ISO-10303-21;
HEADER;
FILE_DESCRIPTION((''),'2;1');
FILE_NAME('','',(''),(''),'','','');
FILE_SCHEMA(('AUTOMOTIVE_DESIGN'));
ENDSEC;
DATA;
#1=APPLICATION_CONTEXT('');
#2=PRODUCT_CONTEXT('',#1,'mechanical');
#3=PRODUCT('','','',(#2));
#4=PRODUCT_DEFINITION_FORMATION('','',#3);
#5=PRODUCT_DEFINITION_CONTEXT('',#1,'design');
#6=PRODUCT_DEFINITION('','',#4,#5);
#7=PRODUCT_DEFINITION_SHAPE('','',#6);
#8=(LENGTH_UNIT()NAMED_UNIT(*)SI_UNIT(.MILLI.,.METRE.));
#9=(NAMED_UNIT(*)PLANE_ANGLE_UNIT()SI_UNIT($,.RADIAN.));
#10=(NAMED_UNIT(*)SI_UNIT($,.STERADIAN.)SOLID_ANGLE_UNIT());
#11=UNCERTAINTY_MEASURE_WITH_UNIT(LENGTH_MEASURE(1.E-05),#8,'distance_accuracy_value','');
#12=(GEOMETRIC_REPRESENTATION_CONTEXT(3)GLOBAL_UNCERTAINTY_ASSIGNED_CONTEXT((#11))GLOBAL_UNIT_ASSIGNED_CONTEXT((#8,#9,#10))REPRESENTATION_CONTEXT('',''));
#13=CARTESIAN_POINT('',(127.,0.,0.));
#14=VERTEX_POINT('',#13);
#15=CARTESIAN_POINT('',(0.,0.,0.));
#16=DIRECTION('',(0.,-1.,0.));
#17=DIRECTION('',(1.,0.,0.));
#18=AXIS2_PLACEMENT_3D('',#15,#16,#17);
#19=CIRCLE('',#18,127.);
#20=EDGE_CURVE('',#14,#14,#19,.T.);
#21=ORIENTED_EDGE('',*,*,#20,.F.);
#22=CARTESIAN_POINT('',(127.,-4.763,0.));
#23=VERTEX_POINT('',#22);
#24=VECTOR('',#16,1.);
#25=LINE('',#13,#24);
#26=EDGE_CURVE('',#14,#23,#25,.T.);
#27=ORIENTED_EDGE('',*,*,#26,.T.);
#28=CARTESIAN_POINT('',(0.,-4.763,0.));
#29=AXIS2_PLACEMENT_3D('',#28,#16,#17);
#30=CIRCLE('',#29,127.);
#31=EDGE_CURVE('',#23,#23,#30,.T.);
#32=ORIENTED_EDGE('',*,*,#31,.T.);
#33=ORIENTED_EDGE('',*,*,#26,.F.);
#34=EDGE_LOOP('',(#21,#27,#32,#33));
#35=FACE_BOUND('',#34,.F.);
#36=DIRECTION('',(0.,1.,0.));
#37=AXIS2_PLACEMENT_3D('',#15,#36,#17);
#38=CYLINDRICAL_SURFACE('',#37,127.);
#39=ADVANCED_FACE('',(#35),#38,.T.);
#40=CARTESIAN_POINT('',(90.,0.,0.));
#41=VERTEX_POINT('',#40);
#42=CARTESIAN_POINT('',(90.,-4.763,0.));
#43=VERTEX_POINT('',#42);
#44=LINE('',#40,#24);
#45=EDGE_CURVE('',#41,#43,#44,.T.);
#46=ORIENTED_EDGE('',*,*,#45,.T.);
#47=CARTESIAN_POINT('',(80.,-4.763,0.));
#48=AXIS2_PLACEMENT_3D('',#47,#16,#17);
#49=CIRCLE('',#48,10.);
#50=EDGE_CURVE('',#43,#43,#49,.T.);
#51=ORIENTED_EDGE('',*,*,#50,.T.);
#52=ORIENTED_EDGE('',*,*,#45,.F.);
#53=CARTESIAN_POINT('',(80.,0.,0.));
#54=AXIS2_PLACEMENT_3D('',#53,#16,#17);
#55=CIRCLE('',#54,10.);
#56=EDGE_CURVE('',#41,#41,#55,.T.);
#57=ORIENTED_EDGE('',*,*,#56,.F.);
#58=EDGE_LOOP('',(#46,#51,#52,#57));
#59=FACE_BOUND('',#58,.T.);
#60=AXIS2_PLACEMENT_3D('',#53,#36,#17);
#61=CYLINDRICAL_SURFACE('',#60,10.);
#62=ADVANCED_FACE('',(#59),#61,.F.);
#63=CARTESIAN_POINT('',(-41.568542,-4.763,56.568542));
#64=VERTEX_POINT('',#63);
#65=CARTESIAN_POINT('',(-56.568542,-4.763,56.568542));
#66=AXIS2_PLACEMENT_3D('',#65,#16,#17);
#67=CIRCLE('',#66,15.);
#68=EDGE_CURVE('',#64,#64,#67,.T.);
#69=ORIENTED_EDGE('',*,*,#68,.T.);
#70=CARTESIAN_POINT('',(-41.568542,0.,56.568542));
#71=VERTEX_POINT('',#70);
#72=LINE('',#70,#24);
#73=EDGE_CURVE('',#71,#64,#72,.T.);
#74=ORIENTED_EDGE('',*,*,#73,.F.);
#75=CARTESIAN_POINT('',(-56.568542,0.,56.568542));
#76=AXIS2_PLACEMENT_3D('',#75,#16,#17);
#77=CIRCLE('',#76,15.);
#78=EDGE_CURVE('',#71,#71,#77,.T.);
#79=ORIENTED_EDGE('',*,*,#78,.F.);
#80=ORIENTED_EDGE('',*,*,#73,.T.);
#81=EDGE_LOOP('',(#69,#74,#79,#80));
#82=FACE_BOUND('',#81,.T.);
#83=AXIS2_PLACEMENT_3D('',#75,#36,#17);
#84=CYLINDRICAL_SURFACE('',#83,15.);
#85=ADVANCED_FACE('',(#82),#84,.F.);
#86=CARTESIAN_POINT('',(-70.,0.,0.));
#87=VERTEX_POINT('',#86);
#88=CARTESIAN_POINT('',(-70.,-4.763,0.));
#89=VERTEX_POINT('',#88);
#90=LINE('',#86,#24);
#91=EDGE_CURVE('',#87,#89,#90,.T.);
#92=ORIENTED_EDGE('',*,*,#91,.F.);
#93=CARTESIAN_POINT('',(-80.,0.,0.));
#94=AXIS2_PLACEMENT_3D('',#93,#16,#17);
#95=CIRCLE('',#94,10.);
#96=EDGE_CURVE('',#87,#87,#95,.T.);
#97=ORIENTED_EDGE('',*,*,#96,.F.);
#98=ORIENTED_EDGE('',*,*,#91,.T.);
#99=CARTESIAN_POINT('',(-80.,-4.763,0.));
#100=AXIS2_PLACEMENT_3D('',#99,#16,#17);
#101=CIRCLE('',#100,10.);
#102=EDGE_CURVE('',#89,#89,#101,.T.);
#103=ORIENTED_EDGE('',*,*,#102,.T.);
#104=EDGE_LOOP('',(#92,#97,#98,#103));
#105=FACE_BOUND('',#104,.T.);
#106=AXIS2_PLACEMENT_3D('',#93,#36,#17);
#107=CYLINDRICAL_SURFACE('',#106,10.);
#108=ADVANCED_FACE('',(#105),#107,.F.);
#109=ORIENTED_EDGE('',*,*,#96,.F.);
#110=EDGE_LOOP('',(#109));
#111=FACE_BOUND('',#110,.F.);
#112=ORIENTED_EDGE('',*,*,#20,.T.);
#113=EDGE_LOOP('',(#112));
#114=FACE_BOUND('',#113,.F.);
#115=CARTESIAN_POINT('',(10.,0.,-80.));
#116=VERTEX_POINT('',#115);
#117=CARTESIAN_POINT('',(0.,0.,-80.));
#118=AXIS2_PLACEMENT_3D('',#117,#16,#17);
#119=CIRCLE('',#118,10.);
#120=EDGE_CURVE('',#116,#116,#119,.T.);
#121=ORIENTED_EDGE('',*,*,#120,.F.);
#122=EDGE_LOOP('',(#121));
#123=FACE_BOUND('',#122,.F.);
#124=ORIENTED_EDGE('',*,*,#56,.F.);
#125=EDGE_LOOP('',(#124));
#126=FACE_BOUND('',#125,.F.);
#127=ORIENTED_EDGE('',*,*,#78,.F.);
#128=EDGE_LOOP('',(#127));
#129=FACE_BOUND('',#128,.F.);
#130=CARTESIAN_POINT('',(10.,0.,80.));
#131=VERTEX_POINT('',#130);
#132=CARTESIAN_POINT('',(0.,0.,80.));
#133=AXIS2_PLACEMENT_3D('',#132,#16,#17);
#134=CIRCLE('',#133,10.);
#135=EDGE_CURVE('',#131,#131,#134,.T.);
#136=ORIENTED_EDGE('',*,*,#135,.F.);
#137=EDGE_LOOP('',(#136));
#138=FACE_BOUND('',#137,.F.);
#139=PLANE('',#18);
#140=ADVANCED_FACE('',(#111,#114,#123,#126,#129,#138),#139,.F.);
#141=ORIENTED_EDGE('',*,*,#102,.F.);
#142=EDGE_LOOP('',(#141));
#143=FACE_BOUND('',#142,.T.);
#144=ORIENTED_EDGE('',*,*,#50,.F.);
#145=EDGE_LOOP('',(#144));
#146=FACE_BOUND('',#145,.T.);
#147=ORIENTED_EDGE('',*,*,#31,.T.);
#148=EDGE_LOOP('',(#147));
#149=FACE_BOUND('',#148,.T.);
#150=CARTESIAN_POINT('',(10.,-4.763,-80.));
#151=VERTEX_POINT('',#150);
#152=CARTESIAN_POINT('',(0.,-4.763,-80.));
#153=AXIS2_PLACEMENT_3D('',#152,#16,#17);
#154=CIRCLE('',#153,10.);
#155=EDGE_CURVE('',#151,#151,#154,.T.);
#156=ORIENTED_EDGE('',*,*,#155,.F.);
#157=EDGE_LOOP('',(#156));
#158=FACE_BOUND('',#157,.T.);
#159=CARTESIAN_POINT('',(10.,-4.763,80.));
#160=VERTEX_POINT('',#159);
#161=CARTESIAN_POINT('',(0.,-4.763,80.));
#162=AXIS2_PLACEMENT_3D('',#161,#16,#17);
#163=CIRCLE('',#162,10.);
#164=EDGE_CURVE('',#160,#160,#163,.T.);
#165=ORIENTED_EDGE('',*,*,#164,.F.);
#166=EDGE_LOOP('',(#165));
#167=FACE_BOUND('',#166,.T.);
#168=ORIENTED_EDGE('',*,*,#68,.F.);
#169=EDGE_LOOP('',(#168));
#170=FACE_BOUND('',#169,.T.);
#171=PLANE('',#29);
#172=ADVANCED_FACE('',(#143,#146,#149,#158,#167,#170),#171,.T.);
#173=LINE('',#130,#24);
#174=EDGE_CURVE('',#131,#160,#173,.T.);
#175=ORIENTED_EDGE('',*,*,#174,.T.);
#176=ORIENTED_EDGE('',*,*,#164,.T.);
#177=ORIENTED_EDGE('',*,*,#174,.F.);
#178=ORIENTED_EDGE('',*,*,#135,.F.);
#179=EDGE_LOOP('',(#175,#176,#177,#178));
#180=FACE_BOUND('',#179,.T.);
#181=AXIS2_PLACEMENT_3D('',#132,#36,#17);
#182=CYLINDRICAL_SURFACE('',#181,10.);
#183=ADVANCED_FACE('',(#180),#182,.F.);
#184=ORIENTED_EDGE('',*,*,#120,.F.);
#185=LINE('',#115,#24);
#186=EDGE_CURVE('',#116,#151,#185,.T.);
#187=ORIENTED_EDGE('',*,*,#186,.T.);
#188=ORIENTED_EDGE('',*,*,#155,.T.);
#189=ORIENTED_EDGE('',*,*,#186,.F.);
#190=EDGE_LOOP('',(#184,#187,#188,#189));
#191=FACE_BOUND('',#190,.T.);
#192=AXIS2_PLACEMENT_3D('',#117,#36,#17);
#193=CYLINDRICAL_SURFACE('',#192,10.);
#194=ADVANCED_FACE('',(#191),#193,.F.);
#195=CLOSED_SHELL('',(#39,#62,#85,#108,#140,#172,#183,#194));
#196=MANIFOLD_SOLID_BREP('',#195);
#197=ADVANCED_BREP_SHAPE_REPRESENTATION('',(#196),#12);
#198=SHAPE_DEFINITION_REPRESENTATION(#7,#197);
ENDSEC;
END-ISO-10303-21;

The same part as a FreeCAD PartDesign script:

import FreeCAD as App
import Part
import Sketcher

V = App.Vector
Q = App.Units.Quantity

doc = App.newDocument("Part")
params = doc.addObject("Spreadsheet::Sheet", "Params")
for row, (alias, value) in enumerate([
    ("sketch1_diameter", "254 mm"),
    ("sketch1_diameter2", "20 mm"),
    ("sketch1_diameter3", "30 mm"),
    ("pad1_length", "4.763 mm"),
], start=1):
    params.set(f"A{row}", alias)
    params.set(f"B{row}", "=" + value)
    params.setAlias(f"B{row}", alias)

body = doc.addObject("PartDesign::Body", "Body")

sketch1 = doc.addObject("Sketcher::SketchObject", "Sketch")
body.addObject(sketch1)
sketch1.AttachmentSupport = (doc.XZ_Plane, [""])
sketch1.MapMode = "FlatFace"
sketch1.addGeometry(Part.Circle(V(0, 0, 0), V(0, 0, 1), 127), False)
sketch1.addGeometry(Part.Circle(V(0, -80, 0), V(0, 0, 1), 10), False)
sketch1.addGeometry(Part.Circle(V(-80, 0, 0), V(0, 0, 1), 10), False)
sketch1.addGeometry(Part.Circle(V(-57, 57, 0), V(0, 0, 1), 15), False)
sketch1.addGeometry(Part.Circle(V(80, 0, 0), V(0, 0, 1), 10), False)
sketch1.addGeometry(Part.Circle(V(0, 80, 0), V(0, 0, 1), 10), False)
sketch1.addConstraint(Sketcher.Constraint("Coincident", 0, 3, -1, 1))
sketch1.addConstraint(Sketcher.Constraint("Equal", 1, 2))
sketch1.addConstraint(Sketcher.Constraint("Equal", 2, 4))
sketch1.addConstraint(Sketcher.Constraint("Equal", 4, 5))
sketch1.addConstraint(Sketcher.Constraint("Symmetric", 2, 3, 4, 3, -1, 1))
sketch1.addConstraint(Sketcher.Constraint("Symmetric", 1, 3, 5, 3, -1, 1))
sketch1.addConstraint(Sketcher.Constraint("PointOnObject", 1, 3, -2))
sketch1.addConstraint(Sketcher.Constraint("PointOnObject", 2, 3, -1))
sketch1.addConstraint(Sketcher.Constraint("Diameter", 0, Q("254 mm")))
sketch1.addConstraint(Sketcher.Constraint("Diameter", 1, Q("20 mm")))
sketch1.addConstraint(Sketcher.Constraint("Diameter", 3, Q("30 mm")))
sketch1.addConstraint(Sketcher.Constraint("DistanceY", 1, 3, -1, 1, Q("80 mm")))
sketch1.addConstraint(Sketcher.Constraint("DistanceX", 2, 3, -1, 1, Q("80 mm")))
sketch1.addConstraint(Sketcher.Constraint("DistanceY", 1, 3, 3, 3, Q("136.568542 mm")))
sketch1.addConstraint(Sketcher.Constraint("DistanceX", 3, 3, 4, 3, Q("136.568542 mm")))
sketch1.setExpression("Constraints[8]", "Params.sketch1_diameter")
sketch1.setExpression("Constraints[9]", "Params.sketch1_diameter2")
sketch1.setExpression("Constraints[10]", "Params.sketch1_diameter3")
pad1 = doc.addObject("PartDesign::Pad", "Pad")
body.addObject(pad1)
pad1.Profile = sketch1
pad1.setExpression("Length", "Params.pad1_length")

doc.recompute()
